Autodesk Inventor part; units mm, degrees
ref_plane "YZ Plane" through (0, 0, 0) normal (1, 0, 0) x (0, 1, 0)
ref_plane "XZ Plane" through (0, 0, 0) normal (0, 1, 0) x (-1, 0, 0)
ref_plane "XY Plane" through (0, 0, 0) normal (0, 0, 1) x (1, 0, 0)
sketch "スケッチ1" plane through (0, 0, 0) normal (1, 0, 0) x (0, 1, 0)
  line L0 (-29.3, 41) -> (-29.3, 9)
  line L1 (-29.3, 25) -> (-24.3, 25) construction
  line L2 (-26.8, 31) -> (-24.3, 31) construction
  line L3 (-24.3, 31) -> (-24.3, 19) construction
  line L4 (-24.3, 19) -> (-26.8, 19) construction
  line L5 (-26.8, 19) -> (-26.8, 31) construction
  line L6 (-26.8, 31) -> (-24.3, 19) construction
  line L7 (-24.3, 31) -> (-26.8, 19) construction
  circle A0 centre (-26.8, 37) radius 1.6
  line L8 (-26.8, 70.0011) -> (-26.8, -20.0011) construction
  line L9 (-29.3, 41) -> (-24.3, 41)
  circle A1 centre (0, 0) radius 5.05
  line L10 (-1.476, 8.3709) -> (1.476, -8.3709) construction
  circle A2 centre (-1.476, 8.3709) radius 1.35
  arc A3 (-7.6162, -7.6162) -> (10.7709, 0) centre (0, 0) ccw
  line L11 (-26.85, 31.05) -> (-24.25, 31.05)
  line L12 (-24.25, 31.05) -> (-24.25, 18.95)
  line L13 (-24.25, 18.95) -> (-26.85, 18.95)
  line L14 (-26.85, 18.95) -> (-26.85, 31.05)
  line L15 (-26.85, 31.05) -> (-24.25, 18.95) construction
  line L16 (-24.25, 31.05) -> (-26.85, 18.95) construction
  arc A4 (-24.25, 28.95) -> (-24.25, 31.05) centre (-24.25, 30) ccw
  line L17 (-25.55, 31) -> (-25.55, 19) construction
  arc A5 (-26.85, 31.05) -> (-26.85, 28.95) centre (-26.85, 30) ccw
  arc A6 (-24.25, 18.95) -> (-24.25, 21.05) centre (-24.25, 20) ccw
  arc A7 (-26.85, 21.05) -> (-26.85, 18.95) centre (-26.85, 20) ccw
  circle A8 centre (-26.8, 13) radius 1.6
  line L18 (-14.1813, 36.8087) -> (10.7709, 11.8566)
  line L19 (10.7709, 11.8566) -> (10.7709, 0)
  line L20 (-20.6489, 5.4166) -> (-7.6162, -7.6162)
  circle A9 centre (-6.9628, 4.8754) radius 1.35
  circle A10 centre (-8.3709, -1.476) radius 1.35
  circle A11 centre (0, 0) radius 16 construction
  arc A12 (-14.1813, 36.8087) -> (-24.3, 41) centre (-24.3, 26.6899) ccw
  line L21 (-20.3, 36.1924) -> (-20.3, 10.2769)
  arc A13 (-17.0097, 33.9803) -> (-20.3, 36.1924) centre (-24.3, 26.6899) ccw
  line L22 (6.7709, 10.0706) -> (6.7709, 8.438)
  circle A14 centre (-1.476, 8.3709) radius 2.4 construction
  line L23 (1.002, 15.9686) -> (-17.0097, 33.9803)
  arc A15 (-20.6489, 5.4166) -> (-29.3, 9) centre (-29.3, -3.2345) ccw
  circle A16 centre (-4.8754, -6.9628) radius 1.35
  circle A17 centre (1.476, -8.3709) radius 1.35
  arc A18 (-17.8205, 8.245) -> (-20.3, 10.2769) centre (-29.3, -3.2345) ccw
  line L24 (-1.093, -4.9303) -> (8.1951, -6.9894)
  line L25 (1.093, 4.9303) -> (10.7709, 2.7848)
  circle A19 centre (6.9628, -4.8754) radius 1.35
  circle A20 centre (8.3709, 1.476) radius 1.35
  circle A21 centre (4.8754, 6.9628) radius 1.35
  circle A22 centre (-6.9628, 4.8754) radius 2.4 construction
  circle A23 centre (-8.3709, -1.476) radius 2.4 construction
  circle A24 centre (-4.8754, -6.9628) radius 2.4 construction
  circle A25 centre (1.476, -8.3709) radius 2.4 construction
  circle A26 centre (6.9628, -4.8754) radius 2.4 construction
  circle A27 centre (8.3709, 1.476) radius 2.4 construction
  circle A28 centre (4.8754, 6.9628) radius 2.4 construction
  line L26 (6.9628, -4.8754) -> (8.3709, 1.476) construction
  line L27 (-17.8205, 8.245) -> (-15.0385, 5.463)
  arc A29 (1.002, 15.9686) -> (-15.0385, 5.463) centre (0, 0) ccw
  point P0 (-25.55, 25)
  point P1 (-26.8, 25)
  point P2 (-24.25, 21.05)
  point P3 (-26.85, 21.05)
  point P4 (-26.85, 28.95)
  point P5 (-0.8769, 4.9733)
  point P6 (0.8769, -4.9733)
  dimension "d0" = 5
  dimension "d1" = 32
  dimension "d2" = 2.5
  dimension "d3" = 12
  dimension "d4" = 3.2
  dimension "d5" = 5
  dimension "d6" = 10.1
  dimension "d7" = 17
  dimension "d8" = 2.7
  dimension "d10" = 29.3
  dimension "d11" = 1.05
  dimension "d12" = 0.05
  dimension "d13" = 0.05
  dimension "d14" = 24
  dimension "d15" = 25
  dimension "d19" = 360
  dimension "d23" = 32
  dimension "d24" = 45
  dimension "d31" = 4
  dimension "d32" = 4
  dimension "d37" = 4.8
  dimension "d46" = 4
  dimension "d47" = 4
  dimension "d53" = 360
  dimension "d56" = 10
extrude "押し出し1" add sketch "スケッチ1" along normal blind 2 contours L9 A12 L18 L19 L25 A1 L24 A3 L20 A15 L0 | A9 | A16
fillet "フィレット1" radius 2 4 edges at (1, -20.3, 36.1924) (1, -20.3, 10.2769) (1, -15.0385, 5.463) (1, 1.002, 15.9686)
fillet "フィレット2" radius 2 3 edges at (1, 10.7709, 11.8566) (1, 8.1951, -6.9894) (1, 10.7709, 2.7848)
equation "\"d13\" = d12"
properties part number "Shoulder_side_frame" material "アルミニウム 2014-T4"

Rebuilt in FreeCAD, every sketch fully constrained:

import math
import FreeCAD as App
import Part
import Sketcher
from FreeCAD import Vector
Q = App.Units.Quantity


def edges_at(feature, points):
    """Names of the edges that pass closest to the given points."""
    edges = feature.Shape.Edges
    near = lambda p: min(range(len(edges)), key=lambda i: edges[i].distToShape(Part.Vertex(*p))[0])
    return sorted({f"Edge{near(p) + 1}" for p in points})

doc = App.newDocument("Part")
body = doc.addObject("PartDesign::Body", "Body")

# Sketch on YZ plane
sketch1 = body.newObject("Sketcher::SketchObject", "Sketch")
sketch1.AttachmentSupport = (doc.getObject("YZ_Plane"), [""])
sketch1.MapMode = "FlatFace"
sketch1.addGeometry(Part.LineSegment(Vector(-24.3, 41, 0), Vector(-29.3, 41, 0)), False)
sketch1.addGeometry(Part.LineSegment(Vector(-29.3, 41, 0), Vector(-29.3, 9, 0)), False)
sketch1.addGeometry(Part.ArcOfCircle(Part.Circle(Vector(-29.3, -3.2, 0), Vector(0, 0, 1), 12.2), math.radians(45), math.radians(90)), False)
sketch1.addGeometry(Part.LineSegment(Vector(-20.6, 5.4, 0), Vector(-7.6, -7.6, 0)), False)
sketch1.addGeometry(Part.ArcOfCircle(Part.Circle(Vector(0, 0, 0), Vector(0, 0, 1), 10.8), math.radians(-135), math.radians(-40)), False)
sketch1.addGeometry(Part.LineSegment(Vector(8.2, -7, 0), Vector(-1.1, -4.9, 0)), False)
sketch1.addGeometry(Part.ArcOfCircle(Part.Circle(Vector(0, 0, 0), Vector(0, 0, 1), 5), math.radians(78), math.radians(258)), False)
sketch1.addGeometry(Part.LineSegment(Vector(1.1, 4.9, 0), Vector(10.8, 2.8, 0)), False)
sketch1.addGeometry(Part.LineSegment(Vector(10.8, 2.8, 0), Vector(10.8, 11.9, 0)), False)
sketch1.addGeometry(Part.LineSegment(Vector(10.8, 11.9, 0), Vector(-14.2, 36.8, 0)), False)
sketch1.addGeometry(Part.ArcOfCircle(Part.Circle(Vector(-24.3, 26.7, 0), Vector(0, 0, 1), 14.3), math.radians(45), math.radians(90)), False)
sketch1.addGeometry(Part.Circle(Vector(-26.8, 13, 0), Vector(0, 0, 1), 1.6), False)
sketch1.addGeometry(Part.Circle(Vector(-8.4, -1.5, 0), Vector(0, 0, 1), 1.4), False)
sketch1.addGeometry(Part.Circle(Vector(1.5, -8.4, 0), Vector(0, 0, 1), 1.4), False)
sketch1.addGeometry(Part.Circle(Vector(-1.5, 8.4, 0), Vector(0, 0, 1), 1.4), False)
sketch1.addGeometry(Part.Circle(Vector(4.9, 7, 0), Vector(0, 0, 1), 1.4), False)
sketch1.addGeometry(Part.ArcOfCircle(Part.Circle(Vector(-26.9, 30, 0), Vector(0, 0, 1), 1.1), math.radians(90), math.radians(270)), False)
sketch1.addGeometry(Part.LineSegment(Vector(-26.9, 31.1, 0), Vector(-24.2, 31.1, 0)), False)
sketch1.addGeometry(Part.ArcOfCircle(Part.Circle(Vector(-24.2, 30, 0), Vector(0, 0, 1), 1.1), math.radians(-90), math.radians(90)), False)
sketch1.addGeometry(Part.LineSegment(Vector(-24.2, 28.9, 0), Vector(-24.2, 21.1, 0)), False)
sketch1.addGeometry(Part.ArcOfCircle(Part.Circle(Vector(-24.2, 20, 0), Vector(0, 0, 1), 1.1), math.radians(-90), math.radians(90)), False)
sketch1.addGeometry(Part.LineSegment(Vector(-24.2, 18.9, 0), Vector(-26.9, 18.9, 0)), False)
sketch1.addGeometry(Part.ArcOfCircle(Part.Circle(Vector(-26.9, 20, 0), Vector(0, 0, 1), 1.1), math.radians(90), math.radians(270)), False)
sketch1.addGeometry(Part.LineSegment(Vector(-26.9, 21.1, 0), Vector(-26.9, 28.9, 0)), False)
sketch1.addGeometry(Part.LineSegment(Vector(-20.3, 10.3, 0), Vector(-20.3, 36.2, 0)), False)
sketch1.addGeometry(Part.ArcOfCircle(Part.Circle(Vector(-24.3, 26.7, 0), Vector(0, 0, 1), 10.3), math.radians(45), math.radians(67)), False)
sketch1.addGeometry(Part.LineSegment(Vector(-17, 34, 0), Vector(1, 16, 0)), False)
sketch1.addGeometry(Part.ArcOfCircle(Part.Circle(Vector(0, 0, 0), Vector(0, 0, 1), 16), math.radians(86), math.radians(160)), False)
sketch1.addGeometry(Part.LineSegment(Vector(-15, 5.5, 0), Vector(-17.8, 8.2, 0)), False)
sketch1.addGeometry(Part.ArcOfCircle(Part.Circle(Vector(-29.3, -3.2, 0), Vector(0, 0, 1), 16.2), math.radians(45), math.radians(56.33)), False)
sketch1.addGeometry(Part.Circle(Vector(-26.8, 37, 0), Vector(0, 0, 1), 1.6), False)
sketch1.addConstraint(Sketcher.Constraint("Coincident", 0, 2, 1, 1))
sketch1.addConstraint(Sketcher.Constraint("Coincident", 1, 2, 2, 2))
sketch1.addConstraint(Sketcher.Constraint("Tangent", 2, 1, 3, 1))
sketch1.addConstraint(Sketcher.Constraint("Tangent", 3, 2, 4, 1))
sketch1.addConstraint(Sketcher.Constraint("Coincident", 4, 2, 5, 1))
sketch1.addConstraint(Sketcher.Constraint("Tangent", 5, 2, 6, 2))
sketch1.addConstraint(Sketcher.Constraint("Tangent", 6, 1, 7, 1))
sketch1.addConstraint(Sketcher.Constraint("Coincident", 7, 2, 8, 1))
sketch1.addConstraint(Sketcher.Constraint("Coincident", 8, 2, 9, 1))
sketch1.addConstraint(Sketcher.Constraint("Tangent", 9, 2, 10, 1))
sketch1.addConstraint(Sketcher.Constraint("Tangent", 10, 2, 0, 1))
sketch1.addConstraint(Sketcher.Constraint("Tangent", 16, 1, 17, 1))
sketch1.addConstraint(Sketcher.Constraint("Tangent", 17, 2, 18, 2))
sketch1.addConstraint(Sketcher.Constraint("Coincident", 18, 1, 19, 1))
sketch1.addConstraint(Sketcher.Constraint("Coincident", 19, 2, 20, 2))
sketch1.addConstraint(Sketcher.Constraint("Tangent", 20, 1, 21, 1))
sketch1.addConstraint(Sketcher.Constraint("Tangent", 21, 2, 22, 2))
sketch1.addConstraint(Sketcher.Constraint("Coincident", 22, 1, 23, 1))
sketch1.addConstraint(Sketcher.Constraint("Coincident", 23, 2, 16, 2))
sketch1.addConstraint(Sketcher.Constraint("Coincident", 24, 2, 25, 2))
sketch1.addConstraint(Sketcher.Constraint("Tangent", 25, 1, 26, 1))
sketch1.addConstraint(Sketcher.Constraint("Coincident", 26, 2, 27, 1))
sketch1.addConstraint(Sketcher.Constraint("Coincident", 27, 2, 28, 1))
sketch1.addConstraint(Sketcher.Constraint("Tangent", 28, 2, 29, 1))
sketch1.addConstraint(Sketcher.Constraint("Coincident", 29, 2, 24, 1))
sketch1.addConstraint(Sketcher.Constraint("Horizontal", 0))
sketch1.addConstraint(Sketcher.Constraint("Vertical", 1))
sketch1.addConstraint(Sketcher.Constraint("Vertical", 8))
sketch1.addConstraint(Sketcher.Constraint("Horizontal", 17))
sketch1.addConstraint(Sketcher.Constraint("Vertical", 19))
sketch1.addConstraint(Sketcher.Constraint("Horizontal", 21))
sketch1.addConstraint(Sketcher.Constraint("Vertical", 23))
sketch1.addConstraint(Sketcher.Constraint("Vertical", 24))
sketch1.addConstraint(Sketcher.Constraint("Coincident", 4, 3, -1, 1))
sketch1.addConstraint(Sketcher.Constraint("Coincident", 6, 3, -1, 1))
sketch1.addConstraint(Sketcher.Constraint("Coincident", 27, 3, -1, 1))
sketch1.addConstraint(Sketcher.Constraint("Coincident", 29, 3, 2, 3))
sketch1.addConstraint(Sketcher.Constraint("Equal", 12, 13))
sketch1.addConstraint(Sketcher.Constraint("Equal", 13, 14))
sketch1.addConstraint(Sketcher.Constraint("Equal", 14, 15))
sketch1.addConstraint(Sketcher.Constraint("Equal", 16, 18))
sketch1.addConstraint(Sketcher.Constraint("Equal", 18, 20))
sketch1.addConstraint(Sketcher.Constraint("Equal", 20, 22))
sketch1.addConstraint(Sketcher.Constraint("Equal", 11, 30))
sketch1.addConstraint(Sketcher.Constraint("Symmetric", 13, 3, 14, 3, -1, 1))
sketch1.addConstraint(Sketcher.Constraint("Parallel", 5, 7))
sketch1.addConstraint(Sketcher.Constraint("Parallel", 3, 9))
sketch1.addConstraint(Sketcher.Constraint("Parallel", 9, 26))
sketch1.addConstraint(Sketcher.Constraint("Parallel", 26, 28))
sketch1.addConstraint(Sketcher.Constraint("Vertical", 18, 3, 20, 3))
sketch1.addConstraint(Sketcher.Constraint("Vertical", 16, 3, 22, 3))
sketch1.addConstraint(Sketcher.Constraint("Vertical", 11, 3, 30, 3))
sketch1.addConstraint(Sketcher.Constraint("Vertical", 29, 3, 0, 2))
sketch1.addConstraint(Sketcher.Constraint("Vertical", 17, 2, 18, 1))
sketch1.addConstraint(Sketcher.Constraint("Vertical", 21, 2, 22, 1))
sketch1.addConstraint(Sketcher.Constraint("Radius", 27, Q("16 mm")))
sketch1.addConstraint(Sketcher.Constraint("Diameter", 11, Q("3.2 mm")))
sketch1.addConstraint(Sketcher.Constraint("Diameter", 12, Q("2.7 mm")))
sketch1.addConstraint(Sketcher.Constraint("DistanceX", 0, 2, 0, 1, Q("5 mm")))
sketch1.addConstraint(Sketcher.Constraint("DistanceY", 1, 2, 1, 1, Q("32 mm")))
sketch1.addConstraint(Sketcher.Constraint("Angle", 3, Q("-45.0002 deg")))
sketch1.addConstraint(Sketcher.Constraint("Radius", 6, Q("5.05 mm")))
sketch1.addConstraint(Sketcher.Constraint("Radius", 16, Q("1.05 mm")))
sketch1.addConstraint(Sketcher.Constraint("DistanceY", 11, 3, 16, 3, Q("17 mm")))
sketch1.addConstraint(Sketcher.Constraint("DistanceY", 20, 3, 18, 3, Q("10 mm")))
sketch1.addConstraint(Sketcher.Constraint("DistanceY", 22, 3, 30, 3, Q("17 mm")))
sketch1.addConstraint(Sketcher.Constraint("DistanceY", 30, 3, 0, 2, Q("4 mm")))
sketch1.addConstraint(Sketcher.Constraint("DistanceX", 10, 2, 24, 2, Q("4 mm")))
sketch1.addConstraint(Sketcher.Constraint("DistanceX", 2, 3, -1, 1, Q("29.3 mm")))
sketch1.addConstraint(Sketcher.Constraint("DistanceX", 11, 3, 10, 3, Q("2.5 mm")))
sketch1.addConstraint(Sketcher.Constraint("Radius", 10, Q("14.31 mm")))
sketch1.addConstraint(Sketcher.Constraint("DistanceX", 16, 3, 11, 3, Q("0.05 mm")))
sketch1.addConstraint(Sketcher.Constraint("DistanceX", 10, 3, 18, 3, Q("0.05 mm")))
sketch1.addConstraint(Sketcher.Constraint("DistanceY", -1, 1, 11, 3, Q("13 mm")))
sketch1.addConstraint(Sketcher.Constraint("Angle", 5, Q("167.5001 deg")))
sketch1.addConstraint(Sketcher.Constraint("Radius", 4, Q("10.771 mm")))
sketch1.addConstraint(Sketcher.Constraint("Radius", 25, Q("10.309 mm")))
sketch1.addConstraint(Sketcher.Constraint("Radius", 29, Q("16.2345 mm")))
sketch1.addConstraint(Sketcher.Constraint("DistanceY", 8, 1, 8, 2, Q("9.0718 mm")))
sketch1.addConstraint(Sketcher.Constraint("DistanceY", 24, 1, 24, 2, Q("25.9155 mm")))
sketch1.addConstraint(Sketcher.Constraint("DistanceX", 12, 3, -1, 1, Q("8.371 mm")))
sketch1.addConstraint(Sketcher.Constraint("DistanceY", 12, 3, -1, 1, Q("1.476 mm")))
sketch1.addConstraint(Sketcher.Constraint("DistanceX", -1, 1, 13, 3, Q("1.476 mm")))
sketch1.addConstraint(Sketcher.Constraint("DistanceY", 13, 3, -1, 1, Q("8.371 mm")))
sketch1.addConstraint(Sketcher.Constraint("DistanceX", -1, 1, 26, 2, Q("1.002 mm")))
sketch1.addConstraint(Sketcher.Constraint("DistanceY", 15, 3, 14, 3, Q("1.408 mm")))
sketch1.addConstraint(Sketcher.Constraint("DistanceX", -1, 1, 15, 3, Q("4.8754 mm")))
pad1 = body.newObject("PartDesign::Pad", "Pad")
pad1.Profile = sketch1
pad1.Length = 2
doc.recompute()

fillet = body.newObject("PartDesign::Fillet", "Fillet")
fillet.Base = (pad1, edges_at(pad1, [
    (1, -20.3, 36.192),
    (1, -20.3, 10.277),
    (1, -15.039, 5.463),
    (1, 1.002, 15.969),
]))
fillet.Radius = 2
doc.recompute()

fillet2 = body.newObject("PartDesign::Fillet", "Fillet001")
fillet2.Base = (fillet, edges_at(fillet, [(1, 10.771, 11.857), (1, 8.195, -6.989), (1, 10.771, 2.785)]))
fillet2.Radius = 2

doc.recompute()
